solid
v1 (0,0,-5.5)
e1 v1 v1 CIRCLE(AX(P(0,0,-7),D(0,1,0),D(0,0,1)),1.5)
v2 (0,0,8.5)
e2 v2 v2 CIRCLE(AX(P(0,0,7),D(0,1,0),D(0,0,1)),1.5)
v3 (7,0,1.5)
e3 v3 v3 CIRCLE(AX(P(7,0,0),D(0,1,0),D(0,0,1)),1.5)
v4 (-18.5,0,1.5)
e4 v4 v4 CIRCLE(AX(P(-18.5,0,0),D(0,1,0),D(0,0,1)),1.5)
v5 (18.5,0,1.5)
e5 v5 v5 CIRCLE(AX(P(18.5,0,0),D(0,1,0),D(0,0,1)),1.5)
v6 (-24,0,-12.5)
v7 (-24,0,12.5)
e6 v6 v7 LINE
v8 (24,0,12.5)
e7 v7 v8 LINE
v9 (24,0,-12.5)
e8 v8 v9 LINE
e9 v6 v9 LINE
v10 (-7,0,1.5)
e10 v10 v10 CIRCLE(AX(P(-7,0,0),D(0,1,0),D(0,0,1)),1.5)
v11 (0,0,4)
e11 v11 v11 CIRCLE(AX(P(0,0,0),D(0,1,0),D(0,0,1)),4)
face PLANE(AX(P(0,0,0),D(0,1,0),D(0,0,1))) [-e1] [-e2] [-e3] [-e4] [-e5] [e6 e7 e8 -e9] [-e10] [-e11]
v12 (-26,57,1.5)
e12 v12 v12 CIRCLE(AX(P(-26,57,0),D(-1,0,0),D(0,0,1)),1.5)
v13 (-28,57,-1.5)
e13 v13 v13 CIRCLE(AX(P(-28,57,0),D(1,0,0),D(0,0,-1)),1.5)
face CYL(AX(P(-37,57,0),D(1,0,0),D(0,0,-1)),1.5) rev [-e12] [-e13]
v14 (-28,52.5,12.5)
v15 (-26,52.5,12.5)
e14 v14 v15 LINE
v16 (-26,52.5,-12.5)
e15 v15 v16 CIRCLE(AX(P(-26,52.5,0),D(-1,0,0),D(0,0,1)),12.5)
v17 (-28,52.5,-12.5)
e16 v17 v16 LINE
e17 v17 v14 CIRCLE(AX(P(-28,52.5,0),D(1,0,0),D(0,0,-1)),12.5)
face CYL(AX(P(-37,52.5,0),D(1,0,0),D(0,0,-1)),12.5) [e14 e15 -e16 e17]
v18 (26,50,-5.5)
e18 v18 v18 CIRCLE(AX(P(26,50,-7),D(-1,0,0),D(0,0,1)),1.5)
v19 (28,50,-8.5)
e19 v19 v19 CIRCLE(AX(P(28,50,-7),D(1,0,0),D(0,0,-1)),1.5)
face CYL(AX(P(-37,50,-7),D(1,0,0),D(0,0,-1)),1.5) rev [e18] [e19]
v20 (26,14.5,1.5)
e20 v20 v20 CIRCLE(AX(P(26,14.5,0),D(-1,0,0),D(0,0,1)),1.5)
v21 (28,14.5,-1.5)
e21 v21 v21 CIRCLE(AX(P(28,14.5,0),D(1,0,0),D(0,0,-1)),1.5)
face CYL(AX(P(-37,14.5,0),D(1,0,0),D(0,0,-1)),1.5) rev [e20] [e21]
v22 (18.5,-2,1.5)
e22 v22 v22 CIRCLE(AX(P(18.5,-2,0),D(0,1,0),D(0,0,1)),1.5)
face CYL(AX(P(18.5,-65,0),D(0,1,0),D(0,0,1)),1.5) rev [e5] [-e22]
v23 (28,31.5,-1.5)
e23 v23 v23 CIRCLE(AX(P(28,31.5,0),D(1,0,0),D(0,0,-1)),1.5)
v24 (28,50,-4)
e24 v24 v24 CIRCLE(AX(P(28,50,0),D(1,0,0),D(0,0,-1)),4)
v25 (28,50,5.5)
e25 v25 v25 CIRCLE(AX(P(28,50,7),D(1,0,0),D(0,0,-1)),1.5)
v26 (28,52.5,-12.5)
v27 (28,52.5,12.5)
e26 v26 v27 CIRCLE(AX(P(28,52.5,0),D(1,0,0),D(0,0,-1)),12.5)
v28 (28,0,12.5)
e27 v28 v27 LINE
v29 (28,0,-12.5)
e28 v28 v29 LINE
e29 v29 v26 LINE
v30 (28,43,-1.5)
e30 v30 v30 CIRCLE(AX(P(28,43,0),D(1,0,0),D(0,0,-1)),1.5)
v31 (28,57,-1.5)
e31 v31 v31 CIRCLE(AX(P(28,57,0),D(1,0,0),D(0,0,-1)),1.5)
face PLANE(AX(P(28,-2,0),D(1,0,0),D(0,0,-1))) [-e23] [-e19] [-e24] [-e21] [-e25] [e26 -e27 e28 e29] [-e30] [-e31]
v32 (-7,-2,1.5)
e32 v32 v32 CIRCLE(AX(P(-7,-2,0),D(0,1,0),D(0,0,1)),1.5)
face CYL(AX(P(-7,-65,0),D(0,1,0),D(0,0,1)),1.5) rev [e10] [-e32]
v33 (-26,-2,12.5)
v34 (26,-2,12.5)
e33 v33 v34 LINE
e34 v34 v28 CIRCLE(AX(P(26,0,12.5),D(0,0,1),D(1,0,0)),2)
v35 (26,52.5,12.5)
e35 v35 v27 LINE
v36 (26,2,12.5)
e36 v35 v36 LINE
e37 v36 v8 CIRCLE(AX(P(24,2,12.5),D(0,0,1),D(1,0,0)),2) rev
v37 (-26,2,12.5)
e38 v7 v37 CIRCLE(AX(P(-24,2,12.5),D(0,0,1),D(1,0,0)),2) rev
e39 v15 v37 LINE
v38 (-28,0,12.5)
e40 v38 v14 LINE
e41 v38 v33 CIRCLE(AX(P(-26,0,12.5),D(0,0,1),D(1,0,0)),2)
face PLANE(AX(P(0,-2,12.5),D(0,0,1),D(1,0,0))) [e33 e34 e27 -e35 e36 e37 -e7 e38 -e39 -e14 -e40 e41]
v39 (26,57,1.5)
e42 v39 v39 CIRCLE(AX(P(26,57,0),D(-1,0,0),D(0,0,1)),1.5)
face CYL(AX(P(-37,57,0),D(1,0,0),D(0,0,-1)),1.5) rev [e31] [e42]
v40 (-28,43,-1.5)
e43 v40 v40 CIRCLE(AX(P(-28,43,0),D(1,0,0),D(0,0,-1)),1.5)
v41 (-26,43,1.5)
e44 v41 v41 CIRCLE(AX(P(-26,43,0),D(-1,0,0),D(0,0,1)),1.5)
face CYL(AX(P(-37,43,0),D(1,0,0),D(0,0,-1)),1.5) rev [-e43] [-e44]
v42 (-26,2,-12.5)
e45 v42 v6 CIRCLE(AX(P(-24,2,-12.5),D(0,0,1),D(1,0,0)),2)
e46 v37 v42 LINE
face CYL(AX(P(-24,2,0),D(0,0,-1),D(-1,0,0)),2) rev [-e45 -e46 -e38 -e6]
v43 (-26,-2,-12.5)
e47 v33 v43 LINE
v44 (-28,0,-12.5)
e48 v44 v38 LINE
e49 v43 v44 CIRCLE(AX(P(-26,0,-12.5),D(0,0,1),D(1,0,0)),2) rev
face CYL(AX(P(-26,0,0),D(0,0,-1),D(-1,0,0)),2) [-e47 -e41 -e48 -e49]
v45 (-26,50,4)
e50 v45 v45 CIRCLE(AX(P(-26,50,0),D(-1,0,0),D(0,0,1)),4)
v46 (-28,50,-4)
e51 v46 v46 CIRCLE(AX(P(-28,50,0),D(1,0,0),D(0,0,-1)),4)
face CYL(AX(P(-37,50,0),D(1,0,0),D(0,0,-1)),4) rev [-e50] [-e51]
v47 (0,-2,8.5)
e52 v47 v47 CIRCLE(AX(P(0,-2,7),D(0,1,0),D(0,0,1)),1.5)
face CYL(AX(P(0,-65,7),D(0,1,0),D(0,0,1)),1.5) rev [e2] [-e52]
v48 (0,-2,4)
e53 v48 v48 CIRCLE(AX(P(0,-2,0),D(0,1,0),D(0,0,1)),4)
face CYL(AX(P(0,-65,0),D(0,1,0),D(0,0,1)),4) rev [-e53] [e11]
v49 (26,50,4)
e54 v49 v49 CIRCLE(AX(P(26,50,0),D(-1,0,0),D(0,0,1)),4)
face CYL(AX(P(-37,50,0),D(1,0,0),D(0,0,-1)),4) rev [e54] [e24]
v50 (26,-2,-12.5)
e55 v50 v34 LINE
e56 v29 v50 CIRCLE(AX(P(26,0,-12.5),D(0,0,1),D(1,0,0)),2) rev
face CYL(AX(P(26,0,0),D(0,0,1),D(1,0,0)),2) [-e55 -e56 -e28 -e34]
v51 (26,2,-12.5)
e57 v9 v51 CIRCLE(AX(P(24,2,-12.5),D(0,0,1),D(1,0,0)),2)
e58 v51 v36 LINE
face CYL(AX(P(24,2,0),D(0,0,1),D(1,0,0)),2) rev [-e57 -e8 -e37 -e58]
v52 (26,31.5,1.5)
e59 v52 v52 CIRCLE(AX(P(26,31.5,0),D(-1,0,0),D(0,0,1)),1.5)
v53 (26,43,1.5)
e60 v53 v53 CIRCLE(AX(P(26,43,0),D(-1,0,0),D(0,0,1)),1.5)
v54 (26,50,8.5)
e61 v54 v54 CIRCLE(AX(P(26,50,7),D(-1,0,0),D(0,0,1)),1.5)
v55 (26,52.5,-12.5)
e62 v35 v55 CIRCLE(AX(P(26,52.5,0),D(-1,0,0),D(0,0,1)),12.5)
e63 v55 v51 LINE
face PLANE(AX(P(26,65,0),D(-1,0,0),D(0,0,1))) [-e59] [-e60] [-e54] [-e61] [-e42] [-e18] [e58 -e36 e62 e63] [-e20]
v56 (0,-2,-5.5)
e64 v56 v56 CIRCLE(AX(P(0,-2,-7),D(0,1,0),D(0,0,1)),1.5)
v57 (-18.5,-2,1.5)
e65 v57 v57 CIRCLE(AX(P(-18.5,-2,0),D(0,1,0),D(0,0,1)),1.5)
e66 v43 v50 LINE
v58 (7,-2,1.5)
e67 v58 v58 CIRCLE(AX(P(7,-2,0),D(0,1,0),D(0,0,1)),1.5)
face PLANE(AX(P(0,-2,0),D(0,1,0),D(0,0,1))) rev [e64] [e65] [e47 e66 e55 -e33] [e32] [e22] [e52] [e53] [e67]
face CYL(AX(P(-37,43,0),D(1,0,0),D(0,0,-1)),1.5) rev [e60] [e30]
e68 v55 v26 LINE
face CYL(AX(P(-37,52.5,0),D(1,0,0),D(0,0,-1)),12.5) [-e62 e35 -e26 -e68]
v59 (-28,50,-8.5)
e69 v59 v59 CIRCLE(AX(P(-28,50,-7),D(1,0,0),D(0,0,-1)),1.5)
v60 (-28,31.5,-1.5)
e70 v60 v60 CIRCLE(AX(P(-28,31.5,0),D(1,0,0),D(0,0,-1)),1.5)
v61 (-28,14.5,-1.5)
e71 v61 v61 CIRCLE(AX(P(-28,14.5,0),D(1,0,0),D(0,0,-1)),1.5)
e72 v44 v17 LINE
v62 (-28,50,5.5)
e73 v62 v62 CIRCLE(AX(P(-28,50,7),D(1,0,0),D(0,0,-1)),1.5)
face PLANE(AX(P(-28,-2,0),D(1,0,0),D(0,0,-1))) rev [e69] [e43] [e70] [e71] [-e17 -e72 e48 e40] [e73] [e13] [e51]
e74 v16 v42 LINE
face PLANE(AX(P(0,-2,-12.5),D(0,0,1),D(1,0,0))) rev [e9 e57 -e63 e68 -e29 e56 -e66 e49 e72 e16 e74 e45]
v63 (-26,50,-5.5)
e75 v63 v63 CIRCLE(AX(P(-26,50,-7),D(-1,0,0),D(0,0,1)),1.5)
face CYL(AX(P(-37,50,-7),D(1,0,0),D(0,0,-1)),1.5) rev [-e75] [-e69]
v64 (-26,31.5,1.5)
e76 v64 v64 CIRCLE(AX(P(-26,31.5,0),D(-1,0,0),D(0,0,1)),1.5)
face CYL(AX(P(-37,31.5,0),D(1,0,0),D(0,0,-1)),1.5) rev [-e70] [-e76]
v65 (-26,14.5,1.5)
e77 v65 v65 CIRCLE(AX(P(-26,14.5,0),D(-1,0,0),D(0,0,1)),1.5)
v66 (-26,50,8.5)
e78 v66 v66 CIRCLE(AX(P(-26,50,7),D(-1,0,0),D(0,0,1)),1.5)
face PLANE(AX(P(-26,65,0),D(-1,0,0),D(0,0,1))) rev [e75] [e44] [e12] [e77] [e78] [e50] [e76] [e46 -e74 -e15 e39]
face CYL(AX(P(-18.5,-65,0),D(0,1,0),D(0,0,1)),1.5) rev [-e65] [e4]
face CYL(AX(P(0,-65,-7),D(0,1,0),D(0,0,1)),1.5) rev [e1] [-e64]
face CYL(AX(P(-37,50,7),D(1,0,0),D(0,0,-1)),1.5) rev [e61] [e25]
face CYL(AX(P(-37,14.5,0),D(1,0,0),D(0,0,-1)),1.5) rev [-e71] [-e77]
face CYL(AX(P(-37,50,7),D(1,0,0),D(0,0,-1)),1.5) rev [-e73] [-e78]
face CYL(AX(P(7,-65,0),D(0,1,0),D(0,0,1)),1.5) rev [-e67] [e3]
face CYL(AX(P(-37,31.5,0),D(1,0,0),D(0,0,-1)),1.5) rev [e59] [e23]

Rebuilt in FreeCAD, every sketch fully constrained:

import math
import FreeCAD as App
import Part
import Sketcher

V = App.Vector
Q = App.Units.Quantity


def edges_at(feature, points):
    """Names of the edges that pass closest to the given points."""
    edges = feature.Shape.Edges
    near = lambda p: min(range(len(edges)), key=lambda i: edges[i].distToShape(Part.Vertex(*p))[0])
    return sorted({f"Edge{near(p) + 1}" for p in points})


def add_polygon(sketch, points):
    """Adds a closed chain of lines whose ends are joined by coincident constraints."""
    first, n = sketch.GeometryCount, len(points)
    for a, b in zip(points, points[1:] + points[:1]):
        sketch.addGeometry(Part.LineSegment(App.Vector(*a, 0), App.Vector(*b, 0)), False)
    for i in range(n):
        sketch.addConstraint(Sketcher.Constraint("Coincident", first + i, 2, first + (i + 1) % n, 1))

doc = App.newDocument("Part")
body = doc.addObject("PartDesign::Body", "Body")

# Sketch on XZ plane
sketch1 = body.newObject("Sketcher::SketchObject", "Sketch")
sketch1.AttachmentSupport = (doc.getObject("XZ_Plane"), [""])
sketch1.MapMode = "FlatFace"
add_polygon(sketch1, [(-28, -12.5), (-28, 12.5), (28, 12.5), (28, -12.5)])  # lines 0-3
sketch1.addConstraint([
    Sketcher.Constraint("Vertical", 0),
    Sketcher.Constraint("Horizontal", 1),
    Sketcher.Constraint("Vertical", 2),
    Sketcher.Constraint("Horizontal", 3),
    Sketcher.Constraint("Symmetric", 0, 2, 2, 2, -1, 1),
    Sketcher.Constraint("DistanceX", 1, 1, 1, 2, Q("56 mm")),
    Sketcher.Constraint("DistanceY", 0, 1, 0, 2, Q("25 mm")),
])
pad1 = body.newObject("PartDesign::Pad", "Pad")
pad1.Profile = sketch1
pad1.Length = 2

# Sketch on XZ plane
sketch2 = body.newObject("Sketcher::SketchObject", "Sketch001")
sketch2.AttachmentSupport = (doc.getObject("XZ_Plane"), [""])
sketch2.MapMode = "FlatFace"
add_polygon(sketch2, [(-28, -12.5), (-28, 12.5), (-26, 12.5), (-26, -12.5)])  # lines 0-3
add_polygon(sketch2, [(26, -12.5), (26, 12.5), (28, 12.5), (28, -12.5)])  # lines 4-7
sketch2.addConstraint([
    Sketcher.Constraint("Vertical", 0),
    Sketcher.Constraint("Horizontal", 1),
    Sketcher.Constraint("Vertical", 2),
    Sketcher.Constraint("Horizontal", 3),
    Sketcher.Constraint("Vertical", 4),
    Sketcher.Constraint("Horizontal", 5),
    Sketcher.Constraint("Vertical", 6),
    Sketcher.Constraint("Horizontal", 7),
    Sketcher.Constraint("Symmetric", 2, 2, 4, 2, -1, 1),
    Sketcher.Constraint("Symmetric", 0, 2, 6, 2, -1, 1),
    Sketcher.Constraint("Horizontal", 1, 2, 4, 2),
    Sketcher.Constraint("DistanceX", 1, 1, 1, 2, Q("2 mm")),
    Sketcher.Constraint("DistanceY", 0, 1, 0, 2, Q("25 mm")),
    Sketcher.Constraint("DistanceX", 0, 2, -1, 1, Q("28 mm")),
])
pad2 = body.newObject("PartDesign::Pad", "Pad001")
pad2.Profile = sketch2
pad2.Length = 65
pad2.Reversed = True
doc.recompute()

fillet = body.newObject("PartDesign::Fillet", "Fillet")
fillet.Base = (pad2, edges_at(pad2, [
    (-28, -2, 0),
    (-26, 0, 0),
    (28, -2, 0),
    (26, 0, 0),
]))
fillet.Radius = 2

# Sketch on YZ plane
sketch3 = body.newObject("Sketcher::SketchObject", "Sketch002")
sketch3.AttachmentSupport = (doc.getObject("YZ_Plane"), [""])
sketch3.MapMode = "FlatFace"
sketch3.AttachmentOffset = App.Placement(V(0, 0, 28), App.Rotation())
sketch3.addGeometry([
    Part.LineSegment(V(65, 12.5, 0), V(52.5, 12.5, 0)),  # 0
    Part.ArcOfCircle(Part.Circle(V(52.5, 0, 0), V(0, 0, 1), 12.5), math.radians(0), math.radians(90)),  # 1
    Part.LineSegment(V(65, 0, 0), V(65, 12.5, 0)),  # 2
    Part.LineSegment(V(65, -12.5, 0), V(65, 0, 0)),  # 3
    Part.ArcOfCircle(Part.Circle(V(52.5, 0, 0), V(0, 0, 1), 12.5), math.radians(-90), math.radians(0)),  # 4
    Part.LineSegment(V(52.5, -12.5, 0), V(65, -12.5, 0)),  # 5
    Part.Circle(V(31.5, 0, 0), V(0, 0, 1), 1.5),  # 6
    Part.Circle(V(14.5, 0, 0), V(0, 0, 1), 1.5),  # 7
    Part.Circle(V(50, 0, 0), V(0, 0, 1), 4),  # 8
    Part.Circle(V(50, 7, 0), V(0, 0, 1), 1.5),  # 9
    Part.Circle(V(57, 0, 0), V(0, 0, 1), 1.5),  # 10
    Part.Circle(V(50, -7, 0), V(0, 0, 1), 1.5),  # 11
    Part.Circle(V(43, 0, 0), V(0, 0, 1), 1.5),  # 12
], False)
sketch3.addConstraint([
    Sketcher.Constraint("Tangent", 0, 2, 1, 2),
    Sketcher.Constraint("Tangent", 1, 1, 2, 1),
    Sketcher.Constraint("Coincident", 2, 2, 0, 1),
    Sketcher.Constraint("Tangent", 3, 2, 4, 2),
    Sketcher.Constraint("Tangent", 4, 1, 5, 1),
    Sketcher.Constraint("Coincident", 5, 2, 3, 1),
    Sketcher.Constraint("Horizontal", 0),
    Sketcher.Constraint("Vertical", 2),
    Sketcher.Constraint("Vertical", 3),
    Sketcher.Constraint("Horizontal", 5),
    Sketcher.Constraint("Coincident", 4, 3, 1, 3),
    Sketcher.Constraint("Equal", 1, 4),
    Sketcher.Constraint("Equal", 6, 7),
    Sketcher.Constraint("Equal", 7, 9),
    Sketcher.Constraint("Equal", 9, 10),
    Sketcher.Constraint("Equal", 10, 11),
    Sketcher.Constraint("Equal", 11, 12),
    Sketcher.Constraint("Symmetric", 9, 3, 11, 3, -1),
    Sketcher.Constraint("PointOnObject", 1, 3, -1),
    Sketcher.Constraint("PointOnObject", 6, 3, -1),
    Sketcher.Constraint("PointOnObject", 7, 3, -1),
    Sketcher.Constraint("PointOnObject", 8, 3, -1),
    Sketcher.Constraint("PointOnObject", 10, 3, -1),
    Sketcher.Constraint("PointOnObject", 12, 3, -1),
    Sketcher.Constraint("Vertical", 8, 3, 9, 3),
    Sketcher.Constraint("Diameter", 6, Q("3 mm")),
    Sketcher.Constraint("Diameter", 8, Q("8 mm")),
    Sketcher.Constraint("Radius", 1, Q("12.5 mm")),
    Sketcher.Constraint("DistanceX", -1, 1, 8, 3, Q("50 mm")),
    Sketcher.Constraint("DistanceY", -1, 1, 9, 3, Q("7 mm")),
    Sketcher.Constraint("DistanceX", -1, 1, 10, 3, Q("57 mm")),
    Sketcher.Constraint("DistanceX", -1, 1, 12, 3, Q("43 mm")),
    Sketcher.Constraint("DistanceX", -1, 1, 1, 1, Q("65 mm")),
    Sketcher.Constraint("DistanceX", 6, 3, 1, 3, Q("21 mm")),
    Sketcher.Constraint("DistanceX", 7, 3, 6, 3, Q("17 mm")),
])
pocket1 = body.newObject("PartDesign::Pocket", "Pocket")
pocket1.Profile = sketch3
pocket1.Length = 65

# Sketch on XZ plane
sketch4 = body.newObject("Sketcher::SketchObject", "Sketch003")
sketch4.AttachmentSupport = (doc.getObject("XZ_Plane"), [""])
sketch4.MapMode = "FlatFace"
sketch4.addGeometry([
    Part.Circle(V(0, 0, 0), V(0, 0, 1), 4),  # 0
    Part.Circle(V(0, -7, 0), V(0, 0, 1), 1.5),  # 1
    Part.Circle(V(7, 0, 0), V(0, 0, 1), 1.5),  # 2
    Part.Circle(V(0, 7, 0), V(0, 0, 1), 1.5),  # 3
    Part.Circle(V(-7, 0, 0), V(0, 0, 1), 1.5),  # 4
    Part.Circle(V(-18.5, 0, 0), V(0, 0, 1), 1.5),  # 5
    Part.Circle(V(18.5, 0, 0), V(0, 0, 1), 1.5),  # 6
], False)
sketch4.addConstraint([
    Sketcher.Constraint("Coincident", 0, 3, -1, 1),
    Sketcher.Constraint("Equal", 1, 2),
    Sketcher.Constraint("Equal", 2, 3),
    Sketcher.Constraint("Equal", 3, 4),
    Sketcher.Constraint("Equal", 4, 5),
    Sketcher.Constraint("Equal", 5, 6),
    Sketcher.Constraint("Symmetric", 1, 3, 3, 3, -1, 1),
    Sketcher.Constraint("Symmetric", 2, 3, 4, 3, -1, 1),
    Sketcher.Constraint("Symmetric", 5, 3, 6, 3, -1, 1),
    Sketcher.Constraint("PointOnObject", 1, 3, -2),
    Sketcher.Constraint("PointOnObject", 2, 3, -1),
    Sketcher.Constraint("PointOnObject", 5, 3, -1),
    Sketcher.Constraint("Diameter", 0, Q("8 mm")),
    Sketcher.Constraint("Diameter", 1, Q("3 mm")),
    Sketcher.Constraint("DistanceY", 1, 3, -1, 1, Q("7 mm")),
    Sketcher.Constraint("DistanceX", -1, 1, 2, 3, Q("7 mm")),
    Sketcher.Constraint("DistanceX", 5, 3, -1, 1, Q("18.5 mm")),
])
pocket2 = body.newObject("PartDesign::Pocket", "Pocket001")
pocket2.Profile = sketch4
pocket2.Length = 65
pocket2.Reversed = True

doc.recompute()
